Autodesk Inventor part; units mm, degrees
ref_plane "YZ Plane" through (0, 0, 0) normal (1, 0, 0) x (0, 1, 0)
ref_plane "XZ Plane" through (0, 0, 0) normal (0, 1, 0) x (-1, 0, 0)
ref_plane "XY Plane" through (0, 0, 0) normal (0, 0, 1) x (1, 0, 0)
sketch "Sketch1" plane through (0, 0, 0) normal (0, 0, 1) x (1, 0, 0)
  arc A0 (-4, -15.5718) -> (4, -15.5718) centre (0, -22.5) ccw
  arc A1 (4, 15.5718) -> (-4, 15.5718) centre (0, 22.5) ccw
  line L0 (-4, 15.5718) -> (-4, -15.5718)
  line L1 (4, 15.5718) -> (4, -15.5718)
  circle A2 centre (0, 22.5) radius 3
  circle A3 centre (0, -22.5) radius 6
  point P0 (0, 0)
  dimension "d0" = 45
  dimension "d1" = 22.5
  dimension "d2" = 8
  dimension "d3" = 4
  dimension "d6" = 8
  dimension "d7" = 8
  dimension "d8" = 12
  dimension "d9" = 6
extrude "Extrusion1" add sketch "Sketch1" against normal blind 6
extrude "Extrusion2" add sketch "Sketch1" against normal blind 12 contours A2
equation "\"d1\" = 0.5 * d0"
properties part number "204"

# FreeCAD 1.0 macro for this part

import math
import FreeCAD as App
import Part
import Sketcher
from FreeCAD import Vector

doc = App.newDocument("Part")
body = doc.addObject("PartDesign::Body", "Body")

# Sketch on XY plane
sketch1 = body.newObject("Sketcher::SketchObject", "Sketch")
sketch1.AttachmentSupport = (doc.getObject("XY_Plane"), [""])
sketch1.MapMode = "FlatFace"
sketch1.addGeometry([
    Part.LineSegment(Vector(-4, 15.6, 0), Vector(-4, -15.6, 0)),  # 0
    Part.ArcOfCircle(Part.Circle(Vector(0, -22.5, 0), Vector(0, 0, 1), 8), math.radians(120), math.radians(420)),  # 1
    Part.LineSegment(Vector(4, -15.6, 0), Vector(4, 15.6, 0)),  # 2
    Part.ArcOfCircle(Part.Circle(Vector(0, 22.5, 0), Vector(0, 0, 1), 8), math.radians(-60), math.radians(240)),  # 3
    Part.Circle(Vector(0, -22.5, 0), Vector(0, 0, 1), 6),  # 4
    Part.Circle(Vector(0, 22.5, 0), Vector(0, 0, 1), 3),  # 5
], False)
sketch1.addConstraint([
    Sketcher.Constraint("Coincident", 0, 2, 1, 1),
    Sketcher.Constraint("Coincident", 1, 2, 2, 1),
    Sketcher.Constraint("Coincident", 2, 2, 3, 1),
    Sketcher.Constraint("Coincident", 3, 2, 0, 1),
    Sketcher.Constraint("Vertical", 0),
    Sketcher.Constraint("Vertical", 2),
    Sketcher.Constraint("Coincident", 4, 3, 1, 3),
    Sketcher.Constraint("Coincident", 5, 3, 3, 3),
    Sketcher.Constraint("Equal", 1, 3),
    Sketcher.Constraint("Symmetric", 1, 3, 3, 3, -1, 1),
    Sketcher.Constraint("Symmetric", 0, 2, 1, 2, -2),
    Sketcher.Constraint("Diameter", 4, 12.0),
    Sketcher.Constraint("Diameter", 5, 6.0),
    Sketcher.Constraint("Radius", 1, 8.0),
    Sketcher.Constraint("DistanceX", 0, 2, -1, 1, 4.0),
    Sketcher.Constraint("DistanceY", 1, 3, 3, 3, 45.0),
])
pad1 = body.newObject("PartDesign::Pad", "Pad")
pad1.Profile = sketch1
pad1.Length = 6
pad1.Reversed = True

# Sketch on XY plane
sketch2 = body.newObject("Sketcher::SketchObject", "Sketch001")
sketch2.AttachmentSupport = (doc.getObject("XY_Plane"), [""])
sketch2.MapMode = "FlatFace"
sketch2.addGeometry(Part.Circle(Vector(0, 22.5, 0), Vector(0, 0, 1), 3), False)
sketch2.addConstraint([
    Sketcher.Constraint("PointOnObject", 0, 3, -2),
    Sketcher.Constraint("Diameter", 0, 6.0),
    Sketcher.Constraint("DistanceY", -1, 1, 0, 3, 22.5),
])
pad2 = body.newObject("PartDesign::Pad", "Pad001")
pad2.Profile = sketch2
pad2.Length = 12
pad2.Reversed = True

doc.recompute()
